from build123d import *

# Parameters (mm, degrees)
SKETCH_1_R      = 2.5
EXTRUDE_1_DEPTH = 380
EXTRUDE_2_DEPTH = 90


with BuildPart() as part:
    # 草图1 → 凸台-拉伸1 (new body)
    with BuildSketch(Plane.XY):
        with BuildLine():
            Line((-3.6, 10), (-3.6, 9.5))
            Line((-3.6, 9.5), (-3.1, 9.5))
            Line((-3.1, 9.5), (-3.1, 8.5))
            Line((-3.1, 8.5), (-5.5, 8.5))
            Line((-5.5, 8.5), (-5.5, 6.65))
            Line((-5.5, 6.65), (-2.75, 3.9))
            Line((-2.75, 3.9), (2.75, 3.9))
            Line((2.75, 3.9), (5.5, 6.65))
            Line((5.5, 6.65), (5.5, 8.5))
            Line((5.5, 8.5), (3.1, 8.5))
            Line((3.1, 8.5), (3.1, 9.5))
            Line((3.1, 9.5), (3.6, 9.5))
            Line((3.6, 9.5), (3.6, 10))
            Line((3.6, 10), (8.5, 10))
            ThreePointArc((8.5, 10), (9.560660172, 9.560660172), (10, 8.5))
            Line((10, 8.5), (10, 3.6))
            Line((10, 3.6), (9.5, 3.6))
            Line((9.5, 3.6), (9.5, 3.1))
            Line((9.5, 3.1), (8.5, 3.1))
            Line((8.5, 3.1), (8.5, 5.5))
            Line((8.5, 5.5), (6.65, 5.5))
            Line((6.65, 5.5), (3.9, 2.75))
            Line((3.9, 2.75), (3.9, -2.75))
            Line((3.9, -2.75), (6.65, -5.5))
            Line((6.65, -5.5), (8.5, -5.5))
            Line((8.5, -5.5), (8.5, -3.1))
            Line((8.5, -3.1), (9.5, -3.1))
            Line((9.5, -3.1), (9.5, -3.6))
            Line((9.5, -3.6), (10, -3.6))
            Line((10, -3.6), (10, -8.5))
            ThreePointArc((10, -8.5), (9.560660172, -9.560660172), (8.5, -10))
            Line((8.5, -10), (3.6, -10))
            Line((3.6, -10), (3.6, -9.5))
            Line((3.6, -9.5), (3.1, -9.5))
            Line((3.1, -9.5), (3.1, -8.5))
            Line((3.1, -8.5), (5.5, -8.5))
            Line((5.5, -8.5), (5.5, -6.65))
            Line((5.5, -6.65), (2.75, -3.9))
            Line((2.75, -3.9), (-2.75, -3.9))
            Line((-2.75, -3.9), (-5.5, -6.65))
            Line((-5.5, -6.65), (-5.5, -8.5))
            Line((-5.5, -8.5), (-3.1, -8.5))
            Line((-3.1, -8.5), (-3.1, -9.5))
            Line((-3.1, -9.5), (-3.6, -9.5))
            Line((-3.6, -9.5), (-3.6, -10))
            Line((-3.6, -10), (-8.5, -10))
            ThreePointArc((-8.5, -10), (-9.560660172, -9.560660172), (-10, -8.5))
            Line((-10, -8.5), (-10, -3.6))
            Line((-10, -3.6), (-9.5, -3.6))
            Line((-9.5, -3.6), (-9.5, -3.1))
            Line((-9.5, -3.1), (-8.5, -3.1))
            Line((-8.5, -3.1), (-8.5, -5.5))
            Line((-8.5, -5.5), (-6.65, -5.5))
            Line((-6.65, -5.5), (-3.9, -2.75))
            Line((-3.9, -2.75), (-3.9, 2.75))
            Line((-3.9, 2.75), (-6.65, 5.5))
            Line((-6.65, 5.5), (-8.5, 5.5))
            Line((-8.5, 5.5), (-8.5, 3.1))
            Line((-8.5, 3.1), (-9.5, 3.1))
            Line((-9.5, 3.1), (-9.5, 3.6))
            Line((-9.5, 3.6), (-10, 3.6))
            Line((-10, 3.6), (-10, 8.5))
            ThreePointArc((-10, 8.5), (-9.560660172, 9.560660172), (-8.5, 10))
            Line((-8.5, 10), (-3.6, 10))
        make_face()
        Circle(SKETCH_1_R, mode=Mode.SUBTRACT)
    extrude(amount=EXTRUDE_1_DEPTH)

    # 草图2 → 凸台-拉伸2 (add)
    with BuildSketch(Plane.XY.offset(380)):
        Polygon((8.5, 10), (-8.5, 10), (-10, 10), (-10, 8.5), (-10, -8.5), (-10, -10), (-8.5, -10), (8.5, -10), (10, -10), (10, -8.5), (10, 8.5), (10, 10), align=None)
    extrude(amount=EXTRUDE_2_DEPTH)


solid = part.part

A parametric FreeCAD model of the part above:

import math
import FreeCAD as App
import Part
import Sketcher

doc = App.newDocument("Part")
body = doc.addObject("PartDesign::Body", "Body")

sketch1 = body.newObject("Sketcher::SketchObject", "Sketch")
sketch1.AttachmentSupport = (doc.getObject("XY_Plane"), [""])
sketch1.MapMode = "FlatFace"
sketch1.addGeometry([
    Part.LineSegment(App.Vector(-3.6, 9.5, 0), App.Vector(-3.6, 10, 0)),
    Part.LineSegment(App.Vector(-3.6, 10, 0), App.Vector(-8.5, 10, 0)),
    Part.ArcOfCircle(Part.Circle(App.Vector(-8.5, 8.5, 0), App.Vector(0, 0, 1), 1.5), math.radians(90), math.radians(180)),
    Part.LineSegment(App.Vector(-10, 8.5, 0), App.Vector(-10, 3.6, 0)),
    Part.LineSegment(App.Vector(-10, 3.6, 0), App.Vector(-9.5, 3.6, 0)),
    Part.LineSegment(App.Vector(-9.5, 3.6, 0), App.Vector(-9.5, 3.1, 0)),
    Part.LineSegment(App.Vector(-9.5, 3.1, 0), App.Vector(-8.5, 3.1, 0)),
    Part.LineSegment(App.Vector(-8.5, 3.1, 0), App.Vector(-8.5, 5.5, 0)),
    Part.LineSegment(App.Vector(-8.5, 5.5, 0), App.Vector(-6.65, 5.5, 0)),
    Part.LineSegment(App.Vector(-6.65, 5.5, 0), App.Vector(-3.9, 2.75, 0)),
    Part.LineSegment(App.Vector(-3.9, 2.75, 0), App.Vector(-3.9, -2.75, 0)),
    Part.LineSegment(App.Vector(-3.9, -2.75, 0), App.Vector(-6.65, -5.5, 0)),
    Part.LineSegment(App.Vector(-6.65, -5.5, 0), App.Vector(-8.5, -5.5, 0)),
    Part.LineSegment(App.Vector(-8.5, -5.5, 0), App.Vector(-8.5, -3.1, 0)),
    Part.LineSegment(App.Vector(-8.5, -3.1, 0), App.Vector(-9.5, -3.1, 0)),
    Part.LineSegment(App.Vector(-9.5, -3.1, 0), App.Vector(-9.5, -3.6, 0)),
    Part.LineSegment(App.Vector(-9.5, -3.6, 0), App.Vector(-10, -3.6, 0)),
    Part.LineSegment(App.Vector(-10, -3.6, 0), App.Vector(-10, -8.5, 0)),
    Part.ArcOfCircle(Part.Circle(App.Vector(-8.5, -8.5, 0), App.Vector(0, 0, 1), 1.5), math.radians(180), math.radians(270)),
    Part.LineSegment(App.Vector(-8.5, -10, 0), App.Vector(-3.6, -10, 0)),
    Part.LineSegment(App.Vector(-3.6, -10, 0), App.Vector(-3.6, -9.5, 0)),
    Part.LineSegment(App.Vector(-3.6, -9.5, 0), App.Vector(-3.1, -9.5, 0)),
    Part.LineSegment(App.Vector(-3.1, -9.5, 0), App.Vector(-3.1, -8.5, 0)),
    Part.LineSegment(App.Vector(-3.1, -8.5, 0), App.Vector(-5.5, -8.5, 0)),
    Part.LineSegment(App.Vector(-5.5, -8.5, 0), App.Vector(-5.5, -6.65, 0)),
    Part.LineSegment(App.Vector(-5.5, -6.65, 0), App.Vector(-2.75, -3.9, 0)),
    Part.LineSegment(App.Vector(-2.75, -3.9, 0), App.Vector(2.75, -3.9, 0)),
    Part.LineSegment(App.Vector(2.75, -3.9, 0), App.Vector(5.5, -6.65, 0)),
    Part.LineSegment(App.Vector(5.5, -6.65, 0), App.Vector(5.5, -8.5, 0)),
    Part.LineSegment(App.Vector(5.5, -8.5, 0), App.Vector(3.1, -8.5, 0)),
    Part.LineSegment(App.Vector(3.1, -8.5, 0), App.Vector(3.1, -9.5, 0)),
    Part.LineSegment(App.Vector(3.1, -9.5, 0), App.Vector(3.6, -9.5, 0)),
    Part.LineSegment(App.Vector(3.6, -9.5, 0), App.Vector(3.6, -10, 0)),
    Part.LineSegment(App.Vector(3.6, -10, 0), App.Vector(8.5, -10, 0)),
    Part.ArcOfCircle(Part.Circle(App.Vector(8.5, -8.5, 0), App.Vector(0, 0, 1), 1.5), math.radians(-90), math.radians(0)),
    Part.LineSegment(App.Vector(10, -8.5, 0), App.Vector(10, -3.6, 0)),
    Part.LineSegment(App.Vector(10, -3.6, 0), App.Vector(9.5, -3.6, 0)),
    Part.LineSegment(App.Vector(9.5, -3.6, 0), App.Vector(9.5, -3.1, 0)),
    Part.LineSegment(App.Vector(9.5, -3.1, 0), App.Vector(8.5, -3.1, 0)),
    Part.LineSegment(App.Vector(8.5, -3.1, 0), App.Vector(8.5, -5.5, 0)),
    Part.LineSegment(App.Vector(8.5, -5.5, 0), App.Vector(6.65, -5.5, 0)),
    Part.LineSegment(App.Vector(6.65, -5.5, 0), App.Vector(3.9, -2.75, 0)),
    Part.LineSegment(App.Vector(3.9, -2.75, 0), App.Vector(3.9, 2.75, 0)),
    Part.LineSegment(App.Vector(3.9, 2.75, 0), App.Vector(6.65, 5.5, 0)),
    Part.LineSegment(App.Vector(6.65, 5.5, 0), App.Vector(8.5, 5.5, 0)),
    Part.LineSegment(App.Vector(8.5, 5.5, 0), App.Vector(8.5, 3.1, 0)),
    Part.LineSegment(App.Vector(8.5, 3.1, 0), App.Vector(9.5, 3.1, 0)),
    Part.LineSegment(App.Vector(9.5, 3.1, 0), App.Vector(9.5, 3.6, 0)),
    Part.LineSegment(App.Vector(9.5, 3.6, 0), App.Vector(10, 3.6, 0)),
    Part.LineSegment(App.Vector(10, 3.6, 0), App.Vector(10, 8.5, 0)),
    Part.ArcOfCircle(Part.Circle(App.Vector(8.5, 8.5, 0), App.Vector(0, 0, 1), 1.5), math.radians(0), math.radians(90)),
    Part.LineSegment(App.Vector(8.5, 10, 0), App.Vector(3.6, 10, 0)),
    Part.LineSegment(App.Vector(3.6, 10, 0), App.Vector(3.6, 9.5, 0)),
    Part.LineSegment(App.Vector(3.6, 9.5, 0), App.Vector(3.1, 9.5, 0)),
    Part.LineSegment(App.Vector(3.1, 9.5, 0), App.Vector(3.1, 8.5, 0)),
    Part.LineSegment(App.Vector(3.1, 8.5, 0), App.Vector(5.5, 8.5, 0)),
    Part.LineSegment(App.Vector(5.5, 8.5, 0), App.Vector(5.5, 6.65, 0)),
    Part.LineSegment(App.Vector(5.5, 6.65, 0), App.Vector(2.75, 3.9, 0)),
    Part.LineSegment(App.Vector(2.75, 3.9, 0), App.Vector(-2.75, 3.9, 0)),
    Part.LineSegment(App.Vector(-2.75, 3.9, 0), App.Vector(-5.5, 6.65, 0)),
    Part.LineSegment(App.Vector(-5.5, 6.65, 0), App.Vector(-5.5, 8.5, 0)),
    Part.LineSegment(App.Vector(-5.5, 8.5, 0), App.Vector(-3.1, 8.5, 0)),
    Part.LineSegment(App.Vector(-3.1, 8.5, 0), App.Vector(-3.1, 9.5, 0)),
    Part.LineSegment(App.Vector(-3.1, 9.5, 0), App.Vector(-3.6, 9.5, 0)),
    Part.Circle(App.Vector(0, 0, 0), App.Vector(0, 0, 1), 2.5),
], False)
sketch1.addConstraint([
    Sketcher.Constraint("Coincident", 0, 2, 1, 1),
    Sketcher.Constraint("Tangent", 1, 2, 2, 1),
    Sketcher.Constraint("Tangent", 2, 2, 3, 1),
    Sketcher.Constraint("Coincident", 3, 2, 4, 1),
    Sketcher.Constraint("Coincident", 4, 2, 5, 1),
    Sketcher.Constraint("Coincident", 5, 2, 6, 1),
    Sketcher.Constraint("Coincident", 6, 2, 7, 1),
    Sketcher.Constraint("Coincident", 7, 2, 8, 1),
    Sketcher.Constraint("Coincident", 8, 2, 9, 1),
    Sketcher.Constraint("Coincident", 9, 2, 10, 1),
    Sketcher.Constraint("Coincident", 10, 2, 11, 1),
    Sketcher.Constraint("Coincident", 11, 2, 12, 1),
    Sketcher.Constraint("Coincident", 12, 2, 13, 1),
    Sketcher.Constraint("Coincident", 13, 2, 14, 1),
    Sketcher.Constraint("Coincident", 14, 2, 15, 1),
    Sketcher.Constraint("Coincident", 15, 2, 16, 1),
    Sketcher.Constraint("Coincident", 16, 2, 17, 1),
    Sketcher.Constraint("Tangent", 17, 2, 18, 1),
    Sketcher.Constraint("Tangent", 18, 2, 19, 1),
    Sketcher.Constraint("Coincident", 19, 2, 20, 1),
    Sketcher.Constraint("Coincident", 20, 2, 21, 1),
    Sketcher.Constraint("Coincident", 21, 2, 22, 1),
    Sketcher.Constraint("Coincident", 22, 2, 23, 1),
    Sketcher.Constraint("Coincident", 23, 2, 24, 1),
    Sketcher.Constraint("Coincident", 24, 2, 25, 1),
    Sketcher.Constraint("Coincident", 25, 2, 26, 1),
    Sketcher.Constraint("Coincident", 26, 2, 27, 1),
    Sketcher.Constraint("Coincident", 27, 2, 28, 1),
    Sketcher.Constraint("Coincident", 28, 2, 29, 1),
    Sketcher.Constraint("Coincident", 29, 2, 30, 1),
    Sketcher.Constraint("Coincident", 30, 2, 31, 1),
    Sketcher.Constraint("Coincident", 31, 2, 32, 1),
    Sketcher.Constraint("Coincident", 32, 2, 33, 1),
    Sketcher.Constraint("Tangent", 33, 2, 34, 1),
    Sketcher.Constraint("Tangent", 34, 2, 35, 1),
    Sketcher.Constraint("Coincident", 35, 2, 36, 1),
    Sketcher.Constraint("Coincident", 36, 2, 37, 1),
    Sketcher.Constraint("Coincident", 37, 2, 38, 1),
    Sketcher.Constraint("Coincident", 38, 2, 39, 1),
    Sketcher.Constraint("Coincident", 39, 2, 40, 1),
    Sketcher.Constraint("Coincident", 40, 2, 41, 1),
    Sketcher.Constraint("Coincident", 41, 2, 42, 1),
    Sketcher.Constraint("Coincident", 42, 2, 43, 1),
    Sketcher.Constraint("Coincident", 43, 2, 44, 1),
    Sketcher.Constraint("Coincident", 44, 2, 45, 1),
    Sketcher.Constraint("Coincident", 45, 2, 46, 1),
    Sketcher.Constraint("Coincident", 46, 2, 47, 1),
    Sketcher.Constraint("Coincident", 47, 2, 48, 1),
    Sketcher.Constraint("Coincident", 48, 2, 49, 1),
    Sketcher.Constraint("Tangent", 49, 2, 50, 1),
    Sketcher.Constraint("Tangent", 50, 2, 51, 1),
    Sketcher.Constraint("Coincident", 51, 2, 52, 1),
    Sketcher.Constraint("Coincident", 52, 2, 53, 1),
    Sketcher.Constraint("Coincident", 53, 2, 54, 1),
    Sketcher.Constraint("Coincident", 54, 2, 55, 1),
    Sketcher.Constraint("Coincident", 55, 2, 56, 1),
    Sketcher.Constraint("Coincident", 56, 2, 57, 1),
    Sketcher.Constraint("Coincident", 57, 2, 58, 1),
    Sketcher.Constraint("Coincident", 58, 2, 59, 1),
    Sketcher.Constraint("Coincident", 59, 2, 60, 1),
    Sketcher.Constraint("Coincident", 60, 2, 61, 1),
    Sketcher.Constraint("Coincident", 61, 2, 62, 1),
    Sketcher.Constraint("Coincident", 62, 2, 63, 1),
    Sketcher.Constraint("Coincident", 63, 2, 0, 1),
    Sketcher.Constraint("Vertical", 0),
    Sketcher.Constraint("Horizontal", 1),
    Sketcher.Constraint("Vertical", 3),
    Sketcher.Constraint("Horizontal", 4),
    Sketcher.Constraint("Vertical", 5),
    Sketcher.Constraint("Horizontal", 6),
    Sketcher.Constraint("Vertical", 7),
    Sketcher.Constraint("Horizontal", 8),
    Sketcher.Constraint("Vertical", 10),
    Sketcher.Constraint("Horizontal", 12),
    Sketcher.Constraint("Vertical", 13),
    Sketcher.Constraint("Horizontal", 14),
    Sketcher.Constraint("Vertical", 15),
    Sketcher.Constraint("Horizontal", 16),
    Sketcher.Constraint("Vertical", 17),
    Sketcher.Constraint("Horizontal", 19),
    Sketcher.Constraint("Vertical", 20),
    Sketcher.Constraint("Horizontal", 21),
    Sketcher.Constraint("Vertical", 22),
    Sketcher.Constraint("Horizontal", 23),
    Sketcher.Constraint("Vertical", 24),
    Sketcher.Constraint("Horizontal", 26),
    Sketcher.Constraint("Vertical", 28),
    Sketcher.Constraint("Horizontal", 29),
    Sketcher.Constraint("Vertical", 30),
    Sketcher.Constraint("Horizontal", 31),
    Sketcher.Constraint("Vertical", 32),
    Sketcher.Constraint("Horizontal", 33),
    Sketcher.Constraint("Vertical", 35),
    Sketcher.Constraint("Horizontal", 36),
    Sketcher.Constraint("Vertical", 37),
    Sketcher.Constraint("Horizontal", 38),
    Sketcher.Constraint("Vertical", 39),
    Sketcher.Constraint("Horizontal", 40),
    Sketcher.Constraint("Vertical", 42),
    Sketcher.Constraint("Horizontal", 44),
    Sketcher.Constraint("Vertical", 45),
    Sketcher.Constraint("Horizontal", 46),
    Sketcher.Constraint("Vertical", 47),
    Sketcher.Constraint("Horizontal", 48),
    Sketcher.Constraint("Vertical", 49),
    Sketcher.Constraint("Horizontal", 51),
    Sketcher.Constraint("Vertical", 52),
    Sketcher.Constraint("Horizontal", 53),
    Sketcher.Constraint("Vertical", 54),
    Sketcher.Constraint("Horizontal", 55),
    Sketcher.Constraint("Vertical", 56),
    Sketcher.Constraint("Horizontal", 58),
    Sketcher.Constraint("Vertical", 60),
    Sketcher.Constraint("Horizontal", 61),
    Sketcher.Constraint("Vertical", 62),
    Sketcher.Constraint("Horizontal", 63),
    Sketcher.Constraint("Coincident", 64, 3, -1, 1),
    Sketcher.Constraint("Equal", 2, 18),
    Sketcher.Constraint("Equal", 18, 34),
    Sketcher.Constraint("Equal", 34, 50),
    Sketcher.Constraint("Symmetric", 2, 3, 34, 3, -1, 1),
    Sketcher.Constraint("Symmetric", 18, 3, 50, 3, -1, 1),
    Sketcher.Constraint("Symmetric", 4, 2, 36, 2, -1, 1),
    Sketcher.Constraint("Symmetric", 6, 2, 38, 2, -1, 1),
    Sketcher.Constraint("Symmetric", 8, 2, 40, 2, -1, 1),
    Sketcher.Constraint("Symmetric", 9, 2, 41, 2, -1, 1),
    Sketcher.Constraint("Symmetric", 11, 2, 43, 2, -1, 1),
    Sketcher.Constraint("Symmetric", 13, 2, 45, 2, -1, 1),
    Sketcher.Constraint("Symmetric", 15, 2, 47, 2, -1, 1),
    Sketcher.Constraint("Symmetric", 20, 2, 52, 2, -1, 1),
    Sketcher.Constraint("Symmetric", 22, 2, 54, 2, -1, 1),
    Sketcher.Constraint("Symmetric", 24, 2, 56, 2, -1, 1),
    Sketcher.Constraint("Symmetric", 25, 2, 57, 2, -1, 1),
    Sketcher.Constraint("Symmetric", 27, 2, 59, 2, -1, 1),
    Sketcher.Constraint("Symmetric", 29, 2, 61, 2, -1, 1),
    Sketcher.Constraint("Symmetric", 31, 2, 63, 2, -1, 1),
    Sketcher.Constraint("Symmetric", 18, 3, 34, 3, -2),
    Sketcher.Constraint("Symmetric", 24, 2, 27, 2, -2),
    Sketcher.Constraint("Symmetric", 22, 2, 29, 2, -2),
    Sketcher.Constraint("Symmetric", 20, 2, 31, 2, -2),
    Sketcher.Constraint("Symmetric", 15, 2, 36, 2, -2),
    Sketcher.Constraint("Symmetric", 13, 2, 38, 2, -2),
    Sketcher.Constraint("Symmetric", 11, 2, 40, 2, -2),
    Sketcher.Constraint("Perpendicular", 9, 11),
    Sketcher.Constraint("Parallel", 11, 25),
    Sketcher.Constraint("Perpendicular", 25, 27),
    Sketcher.Constraint("Perpendicular", 41, 43),
    Sketcher.Constraint("Perpendicular", 57, 59),
    Sketcher.Constraint("Horizontal", 17, 2, 22, 2),
    Sketcher.Constraint("Horizontal", 10, 2, 41, 2),
    Sketcher.Constraint("Vertical", 1, 2, 6, 2),
    Sketcher.Constraint("Equal", 16, 21),
    Sketcher.Constraint("Equal", 63, 0),
    Sketcher.Constraint("Equal", 51, 3),
    Sketcher.Constraint("Equal", 0, 5),
    Sketcher.Constraint("Equal", 61, 7),
    Sketcher.Constraint("Equal", 58, 10),
    Sketcher.Constraint("Equal", 44, 24),
    Sketcher.Constraint("Equal", 11, 25),
    Sketcher.Constraint("Diameter", 64, 5.0),
    Sketcher.Constraint("Radius", 2, 1.5),
    Sketcher.Constraint("DistanceX", 6, 1, 6, 2, 1.0),
    Sketcher.Constraint("DistanceX", 1, 2, 1, 1, 4.9),
    Sketcher.Constraint("DistanceX", 23, 2, 23, 1, 2.4),
    Sketcher.Constraint("DistanceX", 26, 1, 26, 2, 5.5),
    Sketcher.Constraint("DistanceY", -1, 1, 0, 2, 10.0),
    Sketcher.Constraint("DistanceX", 8, 1, 8, 2, 1.85),
])
pad1 = body.newObject("PartDesign::Pad", "Pad")
pad1.Profile = sketch1
pad1.Length = 380

sketch2 = body.newObject("Sketcher::SketchObject", "Sketch001")
sketch2.AttachmentSupport = (doc.getObject("XY_Plane"), [""])
sketch2.MapMode = "FlatFace"
sketch2.AttachmentOffset = App.Placement(App.Vector(0, 0, 380), App.Rotation())
sketch2.addGeometry([
    Part.LineSegment(App.Vector(-10, 10, 0), App.Vector(-10, -10, 0)),
    Part.LineSegment(App.Vector(-10, -10, 0), App.Vector(10, -10, 0)),
    Part.LineSegment(App.Vector(10, -10, 0), App.Vector(10, 10, 0)),
    Part.LineSegment(App.Vector(10, 10, 0), App.Vector(-10, 10, 0)),
], False)
sketch2.addConstraint([
    Sketcher.Constraint("Coincident", 0, 2, 1, 1),
    Sketcher.Constraint("Coincident", 1, 2, 2, 1),
    Sketcher.Constraint("Coincident", 2, 2, 3, 1),
    Sketcher.Constraint("Coincident", 3, 2, 0, 1),
    Sketcher.Constraint("Vertical", 0),
    Sketcher.Constraint("Horizontal", 1),
    Sketcher.Constraint("Vertical", 2),
    Sketcher.Constraint("Horizontal", 3),
    Sketcher.Constraint("Symmetric", 0, 2, 2, 2, -1, 1),
    Sketcher.Constraint("Equal", 3, 0),
    Sketcher.Constraint("DistanceX", 1, 1, 1, 2, 20.0),
])
pad2 = body.newObject("PartDesign::Pad", "Pad001")
pad2.Profile = sketch2
pad2.Length = 90

doc.recompute()
